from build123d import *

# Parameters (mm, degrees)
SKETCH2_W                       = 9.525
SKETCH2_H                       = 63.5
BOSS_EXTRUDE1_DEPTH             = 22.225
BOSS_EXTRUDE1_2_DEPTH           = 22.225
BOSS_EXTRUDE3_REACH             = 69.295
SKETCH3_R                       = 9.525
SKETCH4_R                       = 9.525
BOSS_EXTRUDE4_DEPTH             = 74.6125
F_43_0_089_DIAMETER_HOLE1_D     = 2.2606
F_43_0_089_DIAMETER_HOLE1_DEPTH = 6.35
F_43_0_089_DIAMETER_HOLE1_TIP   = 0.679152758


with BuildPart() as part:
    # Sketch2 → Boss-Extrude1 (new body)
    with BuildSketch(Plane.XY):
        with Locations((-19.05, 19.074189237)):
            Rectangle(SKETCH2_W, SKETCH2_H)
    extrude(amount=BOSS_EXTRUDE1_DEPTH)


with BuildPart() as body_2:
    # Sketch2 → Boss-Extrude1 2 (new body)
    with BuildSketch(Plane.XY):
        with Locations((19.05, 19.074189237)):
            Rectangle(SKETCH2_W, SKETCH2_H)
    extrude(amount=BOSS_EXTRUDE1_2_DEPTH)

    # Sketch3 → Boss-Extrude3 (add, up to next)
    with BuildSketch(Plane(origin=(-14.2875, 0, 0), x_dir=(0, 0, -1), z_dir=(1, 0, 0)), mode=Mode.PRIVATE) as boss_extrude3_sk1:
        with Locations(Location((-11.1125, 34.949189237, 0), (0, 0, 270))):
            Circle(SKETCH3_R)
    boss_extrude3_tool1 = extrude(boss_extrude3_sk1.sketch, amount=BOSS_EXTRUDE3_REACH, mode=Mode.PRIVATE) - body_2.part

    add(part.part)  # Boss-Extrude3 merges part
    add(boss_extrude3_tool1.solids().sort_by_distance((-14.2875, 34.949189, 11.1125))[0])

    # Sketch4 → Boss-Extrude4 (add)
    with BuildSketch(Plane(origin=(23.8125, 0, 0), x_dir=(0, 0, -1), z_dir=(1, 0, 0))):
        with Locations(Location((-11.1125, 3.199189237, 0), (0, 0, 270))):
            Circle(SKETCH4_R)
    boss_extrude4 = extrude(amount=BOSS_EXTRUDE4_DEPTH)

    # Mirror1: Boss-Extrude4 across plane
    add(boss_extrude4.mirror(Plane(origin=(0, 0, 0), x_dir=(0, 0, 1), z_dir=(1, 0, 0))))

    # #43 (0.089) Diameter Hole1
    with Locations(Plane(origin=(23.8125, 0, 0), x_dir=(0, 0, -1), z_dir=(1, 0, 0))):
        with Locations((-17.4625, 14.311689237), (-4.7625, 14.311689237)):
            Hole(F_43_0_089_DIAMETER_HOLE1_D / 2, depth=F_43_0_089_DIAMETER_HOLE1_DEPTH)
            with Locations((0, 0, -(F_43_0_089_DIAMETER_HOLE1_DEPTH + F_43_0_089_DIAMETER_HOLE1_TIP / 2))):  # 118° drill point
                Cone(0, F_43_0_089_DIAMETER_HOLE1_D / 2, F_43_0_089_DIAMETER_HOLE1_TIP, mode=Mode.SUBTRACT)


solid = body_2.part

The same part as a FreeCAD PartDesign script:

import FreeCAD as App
import Part
import Sketcher
Q = App.Units.Quantity

doc = App.newDocument("Part")
body = doc.addObject("PartDesign::Body", "Body")

# Sketch on XY plane
sketch1 = body.newObject("Sketcher::SketchObject", "Sketch")
sketch1.AttachmentSupport = (doc.getObject("XY_Plane"), [""])
sketch1.MapMode = "FlatFace"
sketch1.addGeometry([
    Part.LineSegment(App.Vector(-24, 51, 0), App.Vector(-24, -13, 0)),
    Part.LineSegment(App.Vector(-24, -13, 0), App.Vector(-14, -13, 0)),
    Part.LineSegment(App.Vector(-14, -13, 0), App.Vector(-14, 51, 0)),
    Part.LineSegment(App.Vector(-14, 51, 0), App.Vector(-24, 51, 0)),
], False)
sketch1.addConstraint([
    Sketcher.Constraint("Coincident", 0, 2, 1, 1),
    Sketcher.Constraint("Coincident", 1, 2, 2, 1),
    Sketcher.Constraint("Coincident", 2, 2, 3, 1),
    Sketcher.Constraint("Coincident", 3, 2, 0, 1),
    Sketcher.Constraint("Vertical", 0),
    Sketcher.Constraint("Horizontal", 1),
    Sketcher.Constraint("Vertical", 2),
    Sketcher.Constraint("Horizontal", 3),
    Sketcher.Constraint("DistanceY", 0, 2, 0, 1, Q("2.5 in")),
    Sketcher.Constraint("DistanceX", 1, 1, 1, 2, Q("0.375 in")),
    Sketcher.Constraint("DistanceX", 0, 2, -1, 1, Q("0.9375 in")),
    Sketcher.Constraint("DistanceY", 0, 2, -1, 1, 12.675811),
])
pad1 = body.newObject("PartDesign::Pad", "Pad")
pad1.Profile = sketch1
pad1.Length = Q("0.875 in")
body2 = doc.addObject("PartDesign::Body", "Body001")
body2.AllowCompound = True

# Sketch on XY plane
sketch2 = body2.newObject("Sketcher::SketchObject", "Sketch001")
sketch2.AttachmentSupport = (doc.getObject("XY_Plane001"), [""])
sketch2.MapMode = "FlatFace"
sketch2.addGeometry([
    Part.LineSegment(App.Vector(14, 51, 0), App.Vector(14, -13, 0)),
    Part.LineSegment(App.Vector(14, -13, 0), App.Vector(24, -13, 0)),
    Part.LineSegment(App.Vector(24, -13, 0), App.Vector(24, 51, 0)),
    Part.LineSegment(App.Vector(24, 51, 0), App.Vector(14, 51, 0)),
], False)
sketch2.addConstraint([
    Sketcher.Constraint("Coincident", 0, 2, 1, 1),
    Sketcher.Constraint("Coincident", 1, 2, 2, 1),
    Sketcher.Constraint("Coincident", 2, 2, 3, 1),
    Sketcher.Constraint("Coincident", 3, 2, 0, 1),
    Sketcher.Constraint("Vertical", 0),
    Sketcher.Constraint("Horizontal", 1),
    Sketcher.Constraint("Vertical", 2),
    Sketcher.Constraint("Horizontal", 3),
    Sketcher.Constraint("DistanceY", 0, 2, 0, 1, Q("2.5 in")),
    Sketcher.Constraint("DistanceX", 1, 1, 1, 2, Q("0.375 in")),
    Sketcher.Constraint("DistanceX", -1, 1, 0, 2, Q("0.5625 in")),
    Sketcher.Constraint("DistanceY", 0, 2, -1, 1, 12.675811),
])
pad2 = body2.newObject("PartDesign::Pad", "Pad001")
pad2.Profile = sketch2
pad2.Length = Q("0.875 in")
doc.recompute()

boolean = body2.newObject("PartDesign::Boolean", "Boolean")
boolean.Type = "Fuse"
boolean.addObjects([body])

# Sketch on YZ plane
sketch3 = body2.newObject("Sketcher::SketchObject", "Sketch002")
sketch3.AttachmentSupport = (doc.getObject("YZ_Plane001"), [""])
sketch3.MapMode = "FlatFace"
sketch3.AttachmentOffset = App.Placement(App.Vector(0, 0, -0.5625 * 25.4), App.Rotation())
sketch3.addGeometry(Part.Circle(App.Vector(35, 11, 0), App.Vector(0, 0, 1), 10), False)
sketch3.addConstraint([
    Sketcher.Constraint("Diameter", 0, Q("0.75 in")),
    Sketcher.Constraint("DistanceY", -1, 1, 0, 3, Q("0.4375 in")),
    Sketcher.Constraint("DistanceX", -1, 1, 0, 3, 34.949189),
])
pad3 = body2.newObject("PartDesign::Pad", "Pad002")
pad3.Profile = sketch3
pad3.Type = "UpToFirst"

# Sketch on YZ plane
sketch4 = body2.newObject("Sketcher::SketchObject", "Sketch003")
sketch4.AttachmentSupport = (doc.getObject("YZ_Plane001"), [""])
sketch4.MapMode = "FlatFace"
sketch4.AttachmentOffset = App.Placement(App.Vector(0, 0, 0.9375 * 25.4), App.Rotation())
sketch4.addGeometry(Part.Circle(App.Vector(3, 11, 0), App.Vector(0, 0, 1), 10), False)
sketch4.addConstraint([
    Sketcher.Constraint("Diameter", 0, Q("0.75 in")),
    Sketcher.Constraint("DistanceY", -1, 1, 0, 3, Q("0.4375 in")),
    Sketcher.Constraint("DistanceX", -1, 1, 0, 3, 3.199189),
])
pad4 = body2.newObject("PartDesign::Pad", "Pad003")
pad4.Profile = sketch4
pad4.Length = Q("2.9375 in")
doc.recompute()

mirrored = body2.newObject("PartDesign::Mirrored", "Mirrored")
mirrored.Originals = [pad4]
mirrored.MirrorPlane = (doc.getObject("YZ_Plane001"), [""])
body2.Tip = mirrored

# Sketch on YZ plane
sketch5 = body2.newObject("Sketcher::SketchObject", "Sketch004")
sketch5.AttachmentSupport = (doc.getObject("YZ_Plane001"), [""])
sketch5.MapMode = "FlatFace"
sketch5.AttachmentOffset = App.Placement(App.Vector(0, 0, 0.9375 * 25.4), App.Rotation())
sketch5.addGeometry([
    Part.Circle(App.Vector(14.3, 17.5, 0), App.Vector(0, 0, 1), 1.1),
    Part.Circle(App.Vector(14.3, 4.8, 0), App.Vector(0, 0, 1), 1.1),
], False)
sketch5.addConstraint([
    Sketcher.Constraint("Equal", 0, 1),
    Sketcher.Constraint("Vertical", 0, 3, 1, 3),
    Sketcher.Constraint("Diameter", 0, Q("0.089 in")),
    Sketcher.Constraint("DistanceY", 1, 3, 0, 3, Q("0.5 in")),
    Sketcher.Constraint("DistanceY", -1, 1, 0, 3, Q("0.6875 in")),
    Sketcher.Constraint("DistanceX", -1, 1, 0, 3, 14.311689),
])
doc.recompute()
hole = body2.newObject("PartDesign::Hole", "Hole")
hole.Profile = sketch5
hole.ThreadType = "None"
hole.Diameter = Q("0.089 in")
hole.DepthType = "Dimension"
hole.Depth = Q("0.25 in")
hole.DrillPoint = "Angled"
hole.DrillPointAngle = 118

doc.recompute()
